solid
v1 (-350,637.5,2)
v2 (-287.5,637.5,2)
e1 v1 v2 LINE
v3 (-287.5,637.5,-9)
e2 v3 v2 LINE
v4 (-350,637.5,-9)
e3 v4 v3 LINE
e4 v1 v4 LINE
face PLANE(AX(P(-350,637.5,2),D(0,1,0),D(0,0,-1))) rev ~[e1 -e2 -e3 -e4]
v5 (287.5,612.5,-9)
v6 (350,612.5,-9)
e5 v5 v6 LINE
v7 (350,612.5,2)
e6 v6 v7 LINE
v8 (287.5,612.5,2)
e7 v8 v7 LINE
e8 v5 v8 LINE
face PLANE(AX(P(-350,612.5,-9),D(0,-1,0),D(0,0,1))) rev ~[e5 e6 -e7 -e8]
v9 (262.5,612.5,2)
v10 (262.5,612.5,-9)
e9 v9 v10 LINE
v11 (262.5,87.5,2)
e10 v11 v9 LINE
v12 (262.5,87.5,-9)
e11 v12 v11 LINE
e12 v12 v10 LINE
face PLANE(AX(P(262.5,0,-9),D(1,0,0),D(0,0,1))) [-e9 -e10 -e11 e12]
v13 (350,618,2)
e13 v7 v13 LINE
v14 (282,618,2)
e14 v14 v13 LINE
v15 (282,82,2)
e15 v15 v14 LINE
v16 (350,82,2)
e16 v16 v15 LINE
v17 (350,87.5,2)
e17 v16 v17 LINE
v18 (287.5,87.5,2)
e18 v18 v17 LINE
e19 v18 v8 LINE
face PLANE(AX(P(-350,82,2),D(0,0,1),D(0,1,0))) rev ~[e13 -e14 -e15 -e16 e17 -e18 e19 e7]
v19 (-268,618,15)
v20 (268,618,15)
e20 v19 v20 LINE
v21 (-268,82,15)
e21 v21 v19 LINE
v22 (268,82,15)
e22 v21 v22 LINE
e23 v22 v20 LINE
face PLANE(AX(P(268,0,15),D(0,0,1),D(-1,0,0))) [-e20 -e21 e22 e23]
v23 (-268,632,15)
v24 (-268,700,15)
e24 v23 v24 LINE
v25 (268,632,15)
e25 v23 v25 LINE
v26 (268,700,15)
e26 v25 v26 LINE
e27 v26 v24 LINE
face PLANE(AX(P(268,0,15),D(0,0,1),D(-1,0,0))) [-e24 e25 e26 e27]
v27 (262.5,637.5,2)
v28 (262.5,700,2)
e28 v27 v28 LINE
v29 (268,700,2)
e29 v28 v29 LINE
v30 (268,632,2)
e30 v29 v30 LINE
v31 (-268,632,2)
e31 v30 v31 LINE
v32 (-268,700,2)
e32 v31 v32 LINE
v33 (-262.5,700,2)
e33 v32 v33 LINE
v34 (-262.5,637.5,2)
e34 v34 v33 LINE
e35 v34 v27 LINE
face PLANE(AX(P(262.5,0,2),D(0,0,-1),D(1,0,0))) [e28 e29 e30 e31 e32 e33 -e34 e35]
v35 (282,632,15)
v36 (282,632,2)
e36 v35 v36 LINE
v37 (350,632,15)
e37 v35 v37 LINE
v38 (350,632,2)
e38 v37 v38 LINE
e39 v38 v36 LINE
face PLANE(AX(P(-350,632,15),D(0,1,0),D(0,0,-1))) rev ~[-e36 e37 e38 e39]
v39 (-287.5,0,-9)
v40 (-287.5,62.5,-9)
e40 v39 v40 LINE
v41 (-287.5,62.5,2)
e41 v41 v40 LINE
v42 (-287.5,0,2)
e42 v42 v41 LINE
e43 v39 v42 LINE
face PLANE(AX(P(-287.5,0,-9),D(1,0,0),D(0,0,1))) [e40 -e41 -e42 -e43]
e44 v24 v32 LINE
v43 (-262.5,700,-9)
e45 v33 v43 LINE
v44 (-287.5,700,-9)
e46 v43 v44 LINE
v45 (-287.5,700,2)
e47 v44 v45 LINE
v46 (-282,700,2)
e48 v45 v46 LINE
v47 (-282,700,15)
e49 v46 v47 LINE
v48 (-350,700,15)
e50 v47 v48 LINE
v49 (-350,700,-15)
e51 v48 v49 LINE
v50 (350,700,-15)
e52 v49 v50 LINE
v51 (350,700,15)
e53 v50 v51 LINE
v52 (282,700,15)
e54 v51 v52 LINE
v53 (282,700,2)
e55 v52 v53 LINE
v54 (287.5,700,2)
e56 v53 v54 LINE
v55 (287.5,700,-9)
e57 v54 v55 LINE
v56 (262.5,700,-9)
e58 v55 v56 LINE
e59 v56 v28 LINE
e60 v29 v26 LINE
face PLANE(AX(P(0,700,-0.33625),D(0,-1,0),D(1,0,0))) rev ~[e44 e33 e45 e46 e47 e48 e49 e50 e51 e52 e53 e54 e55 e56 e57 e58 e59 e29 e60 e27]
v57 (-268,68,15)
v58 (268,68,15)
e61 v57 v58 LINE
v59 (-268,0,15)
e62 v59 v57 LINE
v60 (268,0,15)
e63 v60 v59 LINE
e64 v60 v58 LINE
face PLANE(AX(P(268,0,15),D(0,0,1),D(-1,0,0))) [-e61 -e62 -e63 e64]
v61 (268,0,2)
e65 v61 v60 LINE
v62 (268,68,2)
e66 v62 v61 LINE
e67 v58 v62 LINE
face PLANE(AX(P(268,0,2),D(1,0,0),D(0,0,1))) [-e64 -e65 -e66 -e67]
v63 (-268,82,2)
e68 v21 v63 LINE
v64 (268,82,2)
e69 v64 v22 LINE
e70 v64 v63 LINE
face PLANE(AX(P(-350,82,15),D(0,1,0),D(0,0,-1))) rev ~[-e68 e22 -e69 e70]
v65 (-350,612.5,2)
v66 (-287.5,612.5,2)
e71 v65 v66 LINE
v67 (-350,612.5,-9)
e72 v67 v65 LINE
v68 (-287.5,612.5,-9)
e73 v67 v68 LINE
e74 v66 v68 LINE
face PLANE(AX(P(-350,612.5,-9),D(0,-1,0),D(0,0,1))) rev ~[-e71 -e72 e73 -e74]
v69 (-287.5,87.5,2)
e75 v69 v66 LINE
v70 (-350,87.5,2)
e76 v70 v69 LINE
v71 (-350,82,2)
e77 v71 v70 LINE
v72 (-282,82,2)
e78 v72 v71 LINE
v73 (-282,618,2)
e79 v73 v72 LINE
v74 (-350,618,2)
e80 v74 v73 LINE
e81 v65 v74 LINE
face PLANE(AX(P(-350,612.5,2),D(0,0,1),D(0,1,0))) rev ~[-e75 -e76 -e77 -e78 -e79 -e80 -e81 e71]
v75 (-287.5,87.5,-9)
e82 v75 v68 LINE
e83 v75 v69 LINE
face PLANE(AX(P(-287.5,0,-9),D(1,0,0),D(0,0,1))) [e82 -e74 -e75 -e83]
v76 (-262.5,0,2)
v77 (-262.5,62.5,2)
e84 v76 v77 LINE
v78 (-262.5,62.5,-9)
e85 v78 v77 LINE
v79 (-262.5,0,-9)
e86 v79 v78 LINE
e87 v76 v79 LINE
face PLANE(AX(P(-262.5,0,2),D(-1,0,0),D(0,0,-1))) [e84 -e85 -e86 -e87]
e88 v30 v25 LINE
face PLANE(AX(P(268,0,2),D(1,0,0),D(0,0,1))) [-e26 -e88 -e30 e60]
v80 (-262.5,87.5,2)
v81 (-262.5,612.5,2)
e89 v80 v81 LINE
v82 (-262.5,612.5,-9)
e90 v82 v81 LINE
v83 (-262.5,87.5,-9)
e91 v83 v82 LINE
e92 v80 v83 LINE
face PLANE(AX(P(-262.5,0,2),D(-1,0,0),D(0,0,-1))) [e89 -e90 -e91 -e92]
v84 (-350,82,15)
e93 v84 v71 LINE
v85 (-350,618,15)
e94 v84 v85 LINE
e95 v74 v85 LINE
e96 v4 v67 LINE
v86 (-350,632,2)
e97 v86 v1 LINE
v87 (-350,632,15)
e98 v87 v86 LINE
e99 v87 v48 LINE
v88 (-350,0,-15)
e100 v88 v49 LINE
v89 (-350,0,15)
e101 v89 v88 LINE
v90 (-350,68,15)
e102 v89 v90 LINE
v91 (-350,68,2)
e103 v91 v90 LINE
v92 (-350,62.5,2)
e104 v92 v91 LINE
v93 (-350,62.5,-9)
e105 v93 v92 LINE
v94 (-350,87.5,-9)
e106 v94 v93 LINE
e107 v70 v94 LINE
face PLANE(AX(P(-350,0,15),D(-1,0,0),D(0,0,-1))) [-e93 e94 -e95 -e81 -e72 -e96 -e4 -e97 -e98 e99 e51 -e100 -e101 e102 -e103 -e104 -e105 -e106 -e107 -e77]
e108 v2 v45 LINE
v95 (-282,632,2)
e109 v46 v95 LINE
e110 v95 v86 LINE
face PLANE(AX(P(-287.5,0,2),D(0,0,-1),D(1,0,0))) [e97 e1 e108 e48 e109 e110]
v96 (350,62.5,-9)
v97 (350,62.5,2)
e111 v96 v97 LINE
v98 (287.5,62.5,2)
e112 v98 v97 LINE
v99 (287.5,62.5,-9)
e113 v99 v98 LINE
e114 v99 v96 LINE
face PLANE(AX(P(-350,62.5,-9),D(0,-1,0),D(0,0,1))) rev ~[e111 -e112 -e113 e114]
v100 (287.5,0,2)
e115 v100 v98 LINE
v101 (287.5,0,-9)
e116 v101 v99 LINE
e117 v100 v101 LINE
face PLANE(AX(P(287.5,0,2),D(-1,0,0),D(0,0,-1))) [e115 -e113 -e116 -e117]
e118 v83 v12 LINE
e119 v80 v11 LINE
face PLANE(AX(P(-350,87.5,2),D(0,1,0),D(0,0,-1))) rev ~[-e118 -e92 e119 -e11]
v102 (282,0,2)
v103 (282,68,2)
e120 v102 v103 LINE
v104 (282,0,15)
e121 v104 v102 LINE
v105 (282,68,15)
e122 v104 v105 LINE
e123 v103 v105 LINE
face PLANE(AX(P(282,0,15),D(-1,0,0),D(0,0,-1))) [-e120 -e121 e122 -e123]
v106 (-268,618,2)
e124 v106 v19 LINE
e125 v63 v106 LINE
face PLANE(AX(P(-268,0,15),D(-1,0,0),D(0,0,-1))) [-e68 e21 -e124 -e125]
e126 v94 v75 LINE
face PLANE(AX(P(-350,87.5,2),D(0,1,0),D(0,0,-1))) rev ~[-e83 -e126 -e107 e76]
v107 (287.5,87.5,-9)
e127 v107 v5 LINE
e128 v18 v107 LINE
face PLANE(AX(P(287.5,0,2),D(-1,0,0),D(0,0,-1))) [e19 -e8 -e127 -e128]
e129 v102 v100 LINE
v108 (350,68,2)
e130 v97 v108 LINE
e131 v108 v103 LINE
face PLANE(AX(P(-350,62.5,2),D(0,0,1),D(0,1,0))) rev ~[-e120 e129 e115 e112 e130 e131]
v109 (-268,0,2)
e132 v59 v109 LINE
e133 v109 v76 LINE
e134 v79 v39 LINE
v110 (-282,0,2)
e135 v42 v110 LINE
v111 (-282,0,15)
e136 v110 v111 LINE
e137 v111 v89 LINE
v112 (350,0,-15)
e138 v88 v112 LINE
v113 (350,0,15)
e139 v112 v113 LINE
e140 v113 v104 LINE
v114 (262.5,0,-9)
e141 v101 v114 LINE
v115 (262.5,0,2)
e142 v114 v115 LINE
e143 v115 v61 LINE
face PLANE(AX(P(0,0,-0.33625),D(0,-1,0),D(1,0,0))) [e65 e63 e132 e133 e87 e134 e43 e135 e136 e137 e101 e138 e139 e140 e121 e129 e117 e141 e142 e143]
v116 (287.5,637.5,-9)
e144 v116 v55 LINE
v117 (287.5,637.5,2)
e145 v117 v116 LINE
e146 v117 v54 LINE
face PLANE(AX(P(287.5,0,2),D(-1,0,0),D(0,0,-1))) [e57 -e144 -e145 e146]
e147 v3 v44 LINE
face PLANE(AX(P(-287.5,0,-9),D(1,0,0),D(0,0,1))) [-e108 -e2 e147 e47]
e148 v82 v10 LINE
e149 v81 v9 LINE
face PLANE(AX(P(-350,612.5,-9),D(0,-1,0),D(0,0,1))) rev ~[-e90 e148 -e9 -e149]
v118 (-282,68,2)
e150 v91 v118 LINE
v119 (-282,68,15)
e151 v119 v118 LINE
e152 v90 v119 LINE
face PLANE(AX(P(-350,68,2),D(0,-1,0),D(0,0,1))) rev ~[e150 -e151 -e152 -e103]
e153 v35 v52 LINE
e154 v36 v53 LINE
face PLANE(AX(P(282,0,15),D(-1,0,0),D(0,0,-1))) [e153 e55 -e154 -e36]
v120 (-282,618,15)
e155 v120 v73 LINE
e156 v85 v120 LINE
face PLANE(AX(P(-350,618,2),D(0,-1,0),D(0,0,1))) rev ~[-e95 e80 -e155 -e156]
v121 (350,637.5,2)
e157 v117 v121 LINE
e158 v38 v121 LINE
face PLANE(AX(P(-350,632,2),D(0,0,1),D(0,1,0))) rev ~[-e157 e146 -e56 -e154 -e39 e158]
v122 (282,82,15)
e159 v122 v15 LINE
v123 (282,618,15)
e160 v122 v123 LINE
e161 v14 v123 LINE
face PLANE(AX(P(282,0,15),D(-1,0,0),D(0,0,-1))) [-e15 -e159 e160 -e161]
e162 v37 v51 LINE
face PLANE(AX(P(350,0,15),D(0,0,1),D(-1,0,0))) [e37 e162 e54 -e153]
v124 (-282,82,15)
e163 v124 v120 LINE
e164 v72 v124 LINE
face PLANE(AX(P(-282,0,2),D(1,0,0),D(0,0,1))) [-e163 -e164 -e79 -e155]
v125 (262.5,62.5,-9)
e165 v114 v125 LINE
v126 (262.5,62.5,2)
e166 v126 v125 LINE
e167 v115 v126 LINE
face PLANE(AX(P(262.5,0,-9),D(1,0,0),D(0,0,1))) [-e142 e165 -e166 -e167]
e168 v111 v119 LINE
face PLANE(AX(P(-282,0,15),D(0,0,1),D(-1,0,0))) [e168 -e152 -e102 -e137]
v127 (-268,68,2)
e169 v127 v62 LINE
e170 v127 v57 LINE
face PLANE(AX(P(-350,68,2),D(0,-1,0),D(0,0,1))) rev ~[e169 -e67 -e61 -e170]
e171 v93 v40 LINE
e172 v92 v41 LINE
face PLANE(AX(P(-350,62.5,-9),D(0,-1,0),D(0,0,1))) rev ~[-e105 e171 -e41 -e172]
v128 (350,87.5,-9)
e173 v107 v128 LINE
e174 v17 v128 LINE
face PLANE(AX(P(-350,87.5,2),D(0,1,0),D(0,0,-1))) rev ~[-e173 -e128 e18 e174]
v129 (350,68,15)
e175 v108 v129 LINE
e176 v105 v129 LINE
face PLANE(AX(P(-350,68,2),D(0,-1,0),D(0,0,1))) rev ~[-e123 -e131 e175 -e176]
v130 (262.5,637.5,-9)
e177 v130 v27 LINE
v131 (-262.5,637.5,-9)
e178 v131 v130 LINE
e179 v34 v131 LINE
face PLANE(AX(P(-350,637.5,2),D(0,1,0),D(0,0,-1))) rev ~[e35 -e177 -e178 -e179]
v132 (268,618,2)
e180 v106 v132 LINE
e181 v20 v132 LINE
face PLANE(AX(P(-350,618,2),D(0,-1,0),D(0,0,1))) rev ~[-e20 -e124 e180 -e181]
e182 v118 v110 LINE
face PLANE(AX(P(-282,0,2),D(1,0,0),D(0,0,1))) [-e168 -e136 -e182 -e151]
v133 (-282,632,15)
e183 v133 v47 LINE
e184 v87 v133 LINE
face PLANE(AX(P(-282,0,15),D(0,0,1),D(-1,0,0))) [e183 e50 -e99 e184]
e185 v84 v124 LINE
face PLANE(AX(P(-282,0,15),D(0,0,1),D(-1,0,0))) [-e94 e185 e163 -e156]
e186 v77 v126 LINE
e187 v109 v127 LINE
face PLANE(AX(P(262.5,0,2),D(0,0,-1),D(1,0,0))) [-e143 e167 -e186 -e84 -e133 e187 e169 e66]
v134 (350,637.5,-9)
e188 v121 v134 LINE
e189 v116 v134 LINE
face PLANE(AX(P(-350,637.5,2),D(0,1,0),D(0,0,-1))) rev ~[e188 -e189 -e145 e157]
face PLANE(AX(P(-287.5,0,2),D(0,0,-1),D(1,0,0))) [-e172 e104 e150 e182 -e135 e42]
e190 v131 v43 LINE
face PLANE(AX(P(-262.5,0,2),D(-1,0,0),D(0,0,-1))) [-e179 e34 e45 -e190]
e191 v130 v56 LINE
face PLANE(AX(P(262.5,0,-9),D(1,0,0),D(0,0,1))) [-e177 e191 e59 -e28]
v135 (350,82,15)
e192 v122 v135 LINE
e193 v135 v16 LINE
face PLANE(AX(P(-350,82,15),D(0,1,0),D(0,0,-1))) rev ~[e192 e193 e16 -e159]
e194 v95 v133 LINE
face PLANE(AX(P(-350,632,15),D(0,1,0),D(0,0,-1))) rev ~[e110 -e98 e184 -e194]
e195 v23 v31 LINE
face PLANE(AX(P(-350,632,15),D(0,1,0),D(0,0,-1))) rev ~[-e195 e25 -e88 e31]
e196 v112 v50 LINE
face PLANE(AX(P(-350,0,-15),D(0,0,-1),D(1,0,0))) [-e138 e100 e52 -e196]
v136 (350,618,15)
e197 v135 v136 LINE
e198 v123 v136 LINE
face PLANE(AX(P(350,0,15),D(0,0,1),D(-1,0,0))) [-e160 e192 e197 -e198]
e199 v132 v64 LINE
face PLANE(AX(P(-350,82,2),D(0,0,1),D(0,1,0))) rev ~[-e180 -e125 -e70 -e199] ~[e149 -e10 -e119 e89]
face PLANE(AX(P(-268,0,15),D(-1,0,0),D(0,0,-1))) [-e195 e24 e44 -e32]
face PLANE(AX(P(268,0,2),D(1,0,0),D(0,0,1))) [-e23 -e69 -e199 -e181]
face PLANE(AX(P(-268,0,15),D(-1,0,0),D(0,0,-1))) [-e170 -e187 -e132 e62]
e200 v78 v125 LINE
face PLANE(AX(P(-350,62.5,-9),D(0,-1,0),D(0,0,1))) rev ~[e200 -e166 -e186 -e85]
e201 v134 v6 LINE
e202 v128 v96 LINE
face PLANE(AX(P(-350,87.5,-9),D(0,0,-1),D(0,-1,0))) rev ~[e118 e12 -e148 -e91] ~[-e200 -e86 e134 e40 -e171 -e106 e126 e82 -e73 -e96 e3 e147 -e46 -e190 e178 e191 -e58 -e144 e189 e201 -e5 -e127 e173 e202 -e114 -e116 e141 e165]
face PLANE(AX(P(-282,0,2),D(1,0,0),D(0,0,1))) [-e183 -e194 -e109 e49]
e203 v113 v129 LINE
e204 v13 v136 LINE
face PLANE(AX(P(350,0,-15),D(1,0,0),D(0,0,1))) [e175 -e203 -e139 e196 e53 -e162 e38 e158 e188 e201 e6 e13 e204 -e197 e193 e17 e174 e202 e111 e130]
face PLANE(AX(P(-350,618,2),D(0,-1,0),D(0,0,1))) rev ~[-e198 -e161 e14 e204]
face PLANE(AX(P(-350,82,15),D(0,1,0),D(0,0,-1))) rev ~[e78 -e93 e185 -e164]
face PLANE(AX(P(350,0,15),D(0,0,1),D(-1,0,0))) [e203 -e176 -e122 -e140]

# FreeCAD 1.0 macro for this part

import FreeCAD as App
import Part
import Sketcher
from FreeCAD import Vector
Q = App.Units.Quantity


def add_polygon(sketch, points):
    """Adds a closed chain of lines whose ends are joined by coincident constraints."""
    first, n = sketch.GeometryCount, len(points)
    for a, b in zip(points, points[1:] + points[:1]):
        sketch.addGeometry(Part.LineSegment(App.Vector(*a, 0), App.Vector(*b, 0)), False)
    for i in range(n):
        sketch.addConstraint(Sketcher.Constraint("Coincident", first + i, 2, first + (i + 1) % n, 1))

doc = App.newDocument("Part")
body = doc.addObject("PartDesign::Body", "Body")

# Sketch on XZ plane
sketch1 = body.newObject("Sketcher::SketchObject", "Sketch")
sketch1.AttachmentSupport = (doc.getObject("XZ_Plane"), [""])
sketch1.MapMode = "FlatFace"
add_polygon(sketch1, [(350, -15), (350, 15), (282, 15), (282, 2), (288, 2), (288, -9), (262, -9), (262, 2), (268, 2), (268, 15), (-268, 15), (-268, 2), (-262, 2), (-262, -9), (-288, -9), (-288, 2), (-282, 2), (-282, 15), (-350, 15), (-350, -15)])  # lines 0-19
sketch1.addConstraint(Sketcher.Constraint("Vertical", 0))
sketch1.addConstraint(Sketcher.Constraint("Horizontal", 1))
sketch1.addConstraint(Sketcher.Constraint("Vertical", 2))
sketch1.addConstraint(Sketcher.Constraint("Horizontal", 3))
sketch1.addConstraint(Sketcher.Constraint("Vertical", 4))
sketch1.addConstraint(Sketcher.Constraint("Horizontal", 5))
sketch1.addConstraint(Sketcher.Constraint("Vertical", 6))
sketch1.addConstraint(Sketcher.Constraint("Horizontal", 7))
sketch1.addConstraint(Sketcher.Constraint("Vertical", 8))
sketch1.addConstraint(Sketcher.Constraint("Horizontal", 9))
sketch1.addConstraint(Sketcher.Constraint("Vertical", 10))
sketch1.addConstraint(Sketcher.Constraint("Horizontal", 11))
sketch1.addConstraint(Sketcher.Constraint("Vertical", 12))
sketch1.addConstraint(Sketcher.Constraint("Horizontal", 13))
sketch1.addConstraint(Sketcher.Constraint("Vertical", 14))
sketch1.addConstraint(Sketcher.Constraint("Horizontal", 15))
sketch1.addConstraint(Sketcher.Constraint("Vertical", 16))
sketch1.addConstraint(Sketcher.Constraint("Horizontal", 17))
sketch1.addConstraint(Sketcher.Constraint("Vertical", 18))
sketch1.addConstraint(Sketcher.Constraint("Horizontal", 19))
sketch1.addConstraint(Sketcher.Constraint("Symmetric", 0, 2, 18, 2, -1, 1))
sketch1.addConstraint(Sketcher.Constraint("Symmetric", 7, 2, 10, 2, -2))
sketch1.addConstraint(Sketcher.Constraint("Symmetric", 5, 2, 12, 2, -2))
sketch1.addConstraint(Sketcher.Constraint("Symmetric", 3, 2, 14, 2, -2))
sketch1.addConstraint(Sketcher.Constraint("Symmetric", 1, 2, 16, 2, -2))
sketch1.addConstraint(Sketcher.Constraint("Horizontal", 3, 2, 6, 2))
sketch1.addConstraint(Sketcher.Constraint("Horizontal", 1, 2, 8, 2))
sketch1.addConstraint(Sketcher.Constraint("Equal", 3, 7))
sketch1.addConstraint(Sketcher.Constraint("DistanceX", 1, 2, 1, 1, Q("68 mm")))
sketch1.addConstraint(Sketcher.Constraint("DistanceX", 5, 2, 5, 1, Q("25 mm")))
sketch1.addConstraint(Sketcher.Constraint("DistanceX", 9, 2, 9, 1, Q("536 mm")))
sketch1.addConstraint(Sketcher.Constraint("DistanceX", 19, 1, 19, 2, Q("700 mm")))
sketch1.addConstraint(Sketcher.Constraint("DistanceY", 0, 1, 0, 2, Q("30 mm")))
sketch1.addConstraint(Sketcher.Constraint("DistanceY", 2, 2, 2, 1, Q("13 mm")))
sketch1.addConstraint(Sketcher.Constraint("DistanceY", 4, 2, 4, 1, Q("11 mm")))
pad1 = body.newObject("PartDesign::Pad", "Pad")
pad1.Profile = sketch1
pad1.Length = 700
pad1.Reversed = True

# Sketch on YZ plane
sketch2 = body.newObject("Sketcher::SketchObject", "Sketch001")
sketch2.AttachmentSupport = (doc.getObject("YZ_Plane"), [""])
sketch2.MapMode = "FlatFace"
sketch2.AttachmentOffset = App.Placement(Vector(0, 0, -350), App.Rotation())
add_polygon(sketch2, [(618, 2), (618, 15), (632, 15), (632, 2), (638, 2), (638, -9), (612, -9), (612, 2)])  # lines 0-7
add_polygon(sketch2, [(68, 2), (68, 15), (82, 15), (82, 2), (88, 2), (88, -9), (62, -9), (62, 2)])  # lines 8-15
sketch2.addConstraint(Sketcher.Constraint("Vertical", 0))
sketch2.addConstraint(Sketcher.Constraint("Horizontal", 1))
sketch2.addConstraint(Sketcher.Constraint("Vertical", 2))
sketch2.addConstraint(Sketcher.Constraint("Horizontal", 3))
sketch2.addConstraint(Sketcher.Constraint("Vertical", 4))
sketch2.addConstraint(Sketcher.Constraint("Horizontal", 5))
sketch2.addConstraint(Sketcher.Constraint("Vertical", 6))
sketch2.addConstraint(Sketcher.Constraint("Horizontal", 7))
sketch2.addConstraint(Sketcher.Constraint("Vertical", 8))
sketch2.addConstraint(Sketcher.Constraint("Horizontal", 9))
sketch2.addConstraint(Sketcher.Constraint("Vertical", 10))
sketch2.addConstraint(Sketcher.Constraint("Horizontal", 11))
sketch2.addConstraint(Sketcher.Constraint("Vertical", 12))
sketch2.addConstraint(Sketcher.Constraint("Horizontal", 13))
sketch2.addConstraint(Sketcher.Constraint("Vertical", 14))
sketch2.addConstraint(Sketcher.Constraint("Horizontal", 15))
sketch2.addConstraint(Sketcher.Constraint("Horizontal", 3, 2, 6, 2))
sketch2.addConstraint(Sketcher.Constraint("Horizontal", 1, 2, 8, 2))
sketch2.addConstraint(Sketcher.Constraint("Horizontal", 7, 2, 10, 2))
sketch2.addConstraint(Sketcher.Constraint("Horizontal", 5, 2, 12, 2))
sketch2.addConstraint(Sketcher.Constraint("Horizontal", 11, 2, 14, 2))
sketch2.addConstraint(Sketcher.Constraint("Equal", 3, 7))
sketch2.addConstraint(Sketcher.Constraint("Equal", 1, 9))
sketch2.addConstraint(Sketcher.Constraint("Equal", 7, 11))
sketch2.addConstraint(Sketcher.Constraint("Equal", 5, 13))
sketch2.addConstraint(Sketcher.Constraint("DistanceX", 1, 1, 1, 2, Q("14 mm")))
sketch2.addConstraint(Sketcher.Constraint("DistanceX", 5, 2, 5, 1, Q("25 mm")))
sketch2.addConstraint(Sketcher.Constraint("DistanceY", 0, 1, 0, 2, Q("13 mm")))
sketch2.addConstraint(Sketcher.Constraint("DistanceY", 4, 2, 4, 1, Q("11 mm")))
sketch2.addConstraint(Sketcher.Constraint("DistanceX", -1, 1, 0, 2, Q("618 mm")))
sketch2.addConstraint(Sketcher.Constraint("DistanceY", -1, 1, 0, 2, Q("15 mm")))
sketch2.addConstraint(Sketcher.Constraint("DistanceX", -1, 1, 8, 2, Q("68 mm")))
pocket1 = body.newObject("PartDesign::Pocket", "Pocket")
pocket1.Profile = sketch2
pocket1.Length = 700
pocket1.Reversed = True

doc.recompute()
